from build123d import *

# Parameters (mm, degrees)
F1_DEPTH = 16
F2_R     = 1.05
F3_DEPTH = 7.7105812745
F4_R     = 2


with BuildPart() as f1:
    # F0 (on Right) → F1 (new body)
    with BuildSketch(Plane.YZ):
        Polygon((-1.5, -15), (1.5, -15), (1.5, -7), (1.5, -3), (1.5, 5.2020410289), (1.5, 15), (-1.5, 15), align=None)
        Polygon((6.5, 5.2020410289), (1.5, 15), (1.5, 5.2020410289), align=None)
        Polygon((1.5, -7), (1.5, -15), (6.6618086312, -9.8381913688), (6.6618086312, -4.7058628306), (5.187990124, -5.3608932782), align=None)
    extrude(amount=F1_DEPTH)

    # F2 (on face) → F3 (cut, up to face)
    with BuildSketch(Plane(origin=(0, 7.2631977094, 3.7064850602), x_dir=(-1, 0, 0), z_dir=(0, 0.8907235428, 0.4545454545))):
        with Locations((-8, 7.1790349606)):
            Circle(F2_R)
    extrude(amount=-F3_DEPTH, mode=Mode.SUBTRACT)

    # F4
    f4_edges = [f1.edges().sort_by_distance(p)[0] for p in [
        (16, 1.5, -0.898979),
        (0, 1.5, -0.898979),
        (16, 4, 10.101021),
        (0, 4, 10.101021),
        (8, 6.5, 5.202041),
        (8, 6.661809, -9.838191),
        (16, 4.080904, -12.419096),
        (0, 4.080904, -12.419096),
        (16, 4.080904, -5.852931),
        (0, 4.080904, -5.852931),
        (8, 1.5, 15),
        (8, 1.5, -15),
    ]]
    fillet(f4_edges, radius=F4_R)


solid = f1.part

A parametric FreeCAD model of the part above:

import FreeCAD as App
import Part
import Sketcher

V = App.Vector
Q = App.Units.Quantity


def edges_at(feature, points):
    """Names of the edges that pass closest to the given points."""
    edges = feature.Shape.Edges
    near = lambda p: min(range(len(edges)), key=lambda i: edges[i].distToShape(Part.Vertex(*p))[0])
    return sorted({f"Edge{near(p) + 1}" for p in points})


def add_polygon(sketch, points):
    """Adds a closed chain of lines whose ends are joined by coincident constraints."""
    first, n = sketch.GeometryCount, len(points)
    for a, b in zip(points, points[1:] + points[:1]):
        sketch.addGeometry(Part.LineSegment(App.Vector(*a, 0), App.Vector(*b, 0)), False)
    for i in range(n):
        sketch.addConstraint(Sketcher.Constraint("Coincident", first + i, 2, first + (i + 1) % n, 1))

doc = App.newDocument("Part")
body = doc.addObject("PartDesign::Body", "Body")

sketch1 = body.newObject("Sketcher::SketchObject", "Sketch")
sketch1.AttachmentSupport = (doc.getObject("YZ_Plane"), [""])
sketch1.MapMode = "FlatFace"
add_polygon(sketch1, [(-1.5, -15), (1.5, -15), (6.7, -9.8), (6.7, -4.7), (5.2, -5.4), (1.5, -7), (1.5, 5.2), (6.5, 5.2), (1.5, 15), (-1.5, 15)])
sketch1.addConstraint([
    Sketcher.Constraint("Horizontal", 0),
    Sketcher.Constraint("Vertical", 2),
    Sketcher.Constraint("Vertical", 5),
    Sketcher.Constraint("Horizontal", 6),
    Sketcher.Constraint("Horizontal", 8),
    Sketcher.Constraint("Vertical", 9),
    Sketcher.Constraint("Symmetric", 0, 2, 8, 2, -1, 1),
    Sketcher.Constraint("Parallel", 3, 4),
    Sketcher.Constraint("Vertical", 0, 2, 4, 2),
    Sketcher.Constraint("Vertical", 5, 2, 7, 2),
    Sketcher.Constraint("DistanceX", 0, 1, 0, 2, 3.0),
    Sketcher.Constraint("DistanceX", 6, 1, 6, 2, 5.0),
    Sketcher.Constraint("DistanceY", 9, 2, 9, 1, 30.0),
    Sketcher.Constraint("Angle", 1, Q("45 deg")),
    Sketcher.Constraint("Distance", 7, 11.0),
    Sketcher.Constraint("DistanceY", 4, 2, -1, 1, 7.0),
    Sketcher.Constraint("Distance", 1, 7.2999),
    Sketcher.Constraint("DistanceY", 2, 1, 2, 2, 5.132329),
    Sketcher.Constraint("DistanceY", 1, 2, 3, 2, 4.477298),
])
pad1 = body.newObject("PartDesign::Pad", "Pad")
pad1.Profile = sketch1
pad1.Length = 16

sketch2 = body.newObject("Sketcher::SketchObject", "Sketch001")
sketch2.Placement = App.Placement(V(0, 7.263198, 3.706485), App.Rotation(V(-1, 0, 0), V(0, -0.454545455, 0.890723543), V(0, 0.890723543, 0.454545455), "ZXY"))
sketch2.addGeometry(Part.Circle(V(-8, 7.2, 0), V(0, 0, 1), 1.1), False)
sketch2.addConstraint([
    Sketcher.Constraint("Diameter", 0, 2.1),
    Sketcher.Constraint("DistanceX", 0, 3, -1, 1, 8.0),
    Sketcher.Constraint("DistanceY", -1, 1, 0, 3, 7.179035),
])
pocket1 = body.newObject("PartDesign::Pocket", "Pocket")
pocket1.Profile = sketch2
pocket1.Length = 7.710581
doc.recompute()

fillet = body.newObject("PartDesign::Fillet", "Fillet")
fillet.Base = (pocket1, edges_at(pocket1, [
    (16, 1.5, -0.899),
    (0, 1.5, -0.899),
    (16, 4, 10.101),
    (0, 4, 10.101),
    (8, 6.5, 5.202),
    (8, 6.662, -9.838),
    (16, 4.081, -12.419),
    (0, 4.081, -12.419),
    (16, 3.344, -6.18),
    (0, 3.344, -6.18),
    (8, 1.5, 15),
    (8, 1.5, -15),
]))
fillet.Radius = 2

doc.recompute()
